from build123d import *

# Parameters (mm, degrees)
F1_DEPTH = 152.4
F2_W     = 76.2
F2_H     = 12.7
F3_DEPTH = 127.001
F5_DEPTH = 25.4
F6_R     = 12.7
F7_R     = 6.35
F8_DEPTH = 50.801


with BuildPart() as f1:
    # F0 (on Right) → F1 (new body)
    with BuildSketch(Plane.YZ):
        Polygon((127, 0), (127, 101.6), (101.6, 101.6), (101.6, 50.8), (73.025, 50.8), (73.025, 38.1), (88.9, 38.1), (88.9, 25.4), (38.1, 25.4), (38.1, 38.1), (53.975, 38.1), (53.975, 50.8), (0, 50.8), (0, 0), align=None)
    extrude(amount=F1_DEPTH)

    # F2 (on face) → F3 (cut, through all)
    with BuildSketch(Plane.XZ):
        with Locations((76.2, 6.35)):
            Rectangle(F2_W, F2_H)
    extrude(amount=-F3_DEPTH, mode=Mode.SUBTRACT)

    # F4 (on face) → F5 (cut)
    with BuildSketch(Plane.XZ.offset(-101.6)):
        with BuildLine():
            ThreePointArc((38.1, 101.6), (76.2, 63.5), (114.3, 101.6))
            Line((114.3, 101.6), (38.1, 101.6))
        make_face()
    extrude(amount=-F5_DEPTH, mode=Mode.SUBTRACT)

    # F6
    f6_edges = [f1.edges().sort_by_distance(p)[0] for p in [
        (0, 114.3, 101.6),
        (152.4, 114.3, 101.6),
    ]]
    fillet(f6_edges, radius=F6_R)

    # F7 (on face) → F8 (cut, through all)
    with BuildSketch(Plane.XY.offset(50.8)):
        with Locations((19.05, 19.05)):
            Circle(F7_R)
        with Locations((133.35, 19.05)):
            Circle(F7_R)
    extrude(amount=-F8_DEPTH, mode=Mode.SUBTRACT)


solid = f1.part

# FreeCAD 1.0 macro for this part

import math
import FreeCAD as App
import Part
import Sketcher

V = App.Vector
Q = App.Units.Quantity


def edges_at(feature, points):
    """Names of the edges that pass closest to the given points."""
    edges = feature.Shape.Edges
    near = lambda p: min(range(len(edges)), key=lambda i: edges[i].distToShape(Part.Vertex(*p))[0])
    return sorted({f"Edge{near(p) + 1}" for p in points})

doc = App.newDocument("Part")
body = doc.addObject("PartDesign::Body", "Body")

sketch1 = body.newObject("Sketcher::SketchObject", "Sketch")
sketch1.AttachmentSupport = (doc.getObject("YZ_Plane"), [""])
sketch1.MapMode = "FlatFace"
sketch1.addGeometry(Part.LineSegment(V(127, 0, 0), V(127, 102, 0)), False)
sketch1.addGeometry(Part.LineSegment(V(127, 102, 0), V(102, 102, 0)), False)
sketch1.addGeometry(Part.LineSegment(V(102, 102, 0), V(102, 51, 0)), False)
sketch1.addGeometry(Part.LineSegment(V(102, 51, 0), V(73, 51, 0)), False)
sketch1.addGeometry(Part.LineSegment(V(73, 51, 0), V(73, 38, 0)), False)
sketch1.addGeometry(Part.LineSegment(V(73, 38, 0), V(89, 38, 0)), False)
sketch1.addGeometry(Part.LineSegment(V(89, 38, 0), V(89, 25, 0)), False)
sketch1.addGeometry(Part.LineSegment(V(89, 25, 0), V(38, 25, 0)), False)
sketch1.addGeometry(Part.LineSegment(V(38, 25, 0), V(38, 38, 0)), False)
sketch1.addGeometry(Part.LineSegment(V(38, 38, 0), V(54, 38, 0)), False)
sketch1.addGeometry(Part.LineSegment(V(54, 38, 0), V(54, 51, 0)), False)
sketch1.addGeometry(Part.LineSegment(V(54, 51, 0), V(0, 51, 0)), False)
sketch1.addGeometry(Part.LineSegment(V(0, 51, 0), V(0, 0, 0)), False)
sketch1.addGeometry(Part.LineSegment(V(0, 0, 0), V(127, 0, 0)), False)
sketch1.addConstraint(Sketcher.Constraint("Coincident", 0, 2, 1, 1))
sketch1.addConstraint(Sketcher.Constraint("Coincident", 1, 2, 2, 1))
sketch1.addConstraint(Sketcher.Constraint("Coincident", 2, 2, 3, 1))
sketch1.addConstraint(Sketcher.Constraint("Coincident", 3, 2, 4, 1))
sketch1.addConstraint(Sketcher.Constraint("Coincident", 4, 2, 5, 1))
sketch1.addConstraint(Sketcher.Constraint("Coincident", 5, 2, 6, 1))
sketch1.addConstraint(Sketcher.Constraint("Coincident", 6, 2, 7, 1))
sketch1.addConstraint(Sketcher.Constraint("Coincident", 7, 2, 8, 1))
sketch1.addConstraint(Sketcher.Constraint("Coincident", 8, 2, 9, 1))
sketch1.addConstraint(Sketcher.Constraint("Coincident", 9, 2, 10, 1))
sketch1.addConstraint(Sketcher.Constraint("Coincident", 10, 2, 11, 1))
sketch1.addConstraint(Sketcher.Constraint("Coincident", 11, 2, 12, 1))
sketch1.addConstraint(Sketcher.Constraint("Coincident", 12, 2, 13, 1))
sketch1.addConstraint(Sketcher.Constraint("Coincident", 13, 2, 0, 1))
sketch1.addConstraint(Sketcher.Constraint("Vertical", 0))
sketch1.addConstraint(Sketcher.Constraint("Horizontal", 1))
sketch1.addConstraint(Sketcher.Constraint("Vertical", 2))
sketch1.addConstraint(Sketcher.Constraint("Horizontal", 3))
sketch1.addConstraint(Sketcher.Constraint("Vertical", 4))
sketch1.addConstraint(Sketcher.Constraint("Horizontal", 5))
sketch1.addConstraint(Sketcher.Constraint("Vertical", 6))
sketch1.addConstraint(Sketcher.Constraint("Horizontal", 7))
sketch1.addConstraint(Sketcher.Constraint("Vertical", 8))
sketch1.addConstraint(Sketcher.Constraint("Horizontal", 9))
sketch1.addConstraint(Sketcher.Constraint("Vertical", 10))
sketch1.addConstraint(Sketcher.Constraint("Horizontal", 11))
sketch1.addConstraint(Sketcher.Constraint("Vertical", 12))
sketch1.addConstraint(Sketcher.Constraint("Horizontal", 13))
sketch1.addConstraint(Sketcher.Constraint("Coincident", 12, 2, -1, 1))
sketch1.addConstraint(Sketcher.Constraint("Horizontal", 5, 2, 8, 2))
sketch1.addConstraint(Sketcher.Constraint("Horizontal", 3, 2, 10, 2))
sketch1.addConstraint(Sketcher.Constraint("Equal", 5, 9))
sketch1.addConstraint(Sketcher.Constraint("Equal", 7, 2))
sketch1.addConstraint(Sketcher.Constraint("Equal", 4, 6))
sketch1.addConstraint(Sketcher.Constraint("Equal", 2, 12))
sketch1.addConstraint(Sketcher.Constraint("DistanceX", 1, 2, 1, 1, Q("1 in")))
sketch1.addConstraint(Sketcher.Constraint("DistanceX", 7, 2, 7, 1, Q("2 in")))
sketch1.addConstraint(Sketcher.Constraint("DistanceX", 13, 1, 13, 2, Q("5 in")))
sketch1.addConstraint(Sketcher.Constraint("DistanceY", 4, 2, 4, 1, Q("0.5 in")))
sketch1.addConstraint(Sketcher.Constraint("DistanceX", -1, 1, 5, 2, Q("3.5 in")))
sketch1.addConstraint(Sketcher.Constraint("DistanceX", 3, 2, 3, 1, Q("1.125 in")))
pad1 = body.newObject("PartDesign::Pad", "Pad")
pad1.Profile = sketch1
pad1.Length = Q("6 in")

sketch2 = body.newObject("Sketcher::SketchObject", "Sketch001")
sketch2.AttachmentSupport = (doc.getObject("XZ_Plane"), [""])
sketch2.MapMode = "FlatFace"
sketch2.addGeometry(Part.LineSegment(V(38, 13, 0), V(38, 0, 0)), False)
sketch2.addGeometry(Part.LineSegment(V(38, 0, 0), V(114, 0, 0)), False)
sketch2.addGeometry(Part.LineSegment(V(114, 0, 0), V(114, 13, 0)), False)
sketch2.addGeometry(Part.LineSegment(V(114, 13, 0), V(38, 13, 0)), False)
sketch2.addConstraint(Sketcher.Constraint("Coincident", 0, 2, 1, 1))
sketch2.addConstraint(Sketcher.Constraint("Coincident", 1, 2, 2, 1))
sketch2.addConstraint(Sketcher.Constraint("Coincident", 2, 2, 3, 1))
sketch2.addConstraint(Sketcher.Constraint("Coincident", 3, 2, 0, 1))
sketch2.addConstraint(Sketcher.Constraint("Vertical", 0))
sketch2.addConstraint(Sketcher.Constraint("Horizontal", 1))
sketch2.addConstraint(Sketcher.Constraint("Vertical", 2))
sketch2.addConstraint(Sketcher.Constraint("Horizontal", 3))
sketch2.addConstraint(Sketcher.Constraint("PointOnObject", 0, 2, -1))
sketch2.addConstraint(Sketcher.Constraint("DistanceX", 1, 1, 1, 2, Q("3 in")))
sketch2.addConstraint(Sketcher.Constraint("DistanceY", 0, 2, 0, 1, Q("0.5 in")))
sketch2.addConstraint(Sketcher.Constraint("DistanceX", -1, 1, 0, 2, Q("1.5 in")))
pocket1 = body.newObject("PartDesign::Pocket", "Pocket")
pocket1.Profile = sketch2
pocket1.Type = "ThroughAll"

sketch3 = body.newObject("Sketcher::SketchObject", "Sketch002")
sketch3.AttachmentSupport = (doc.getObject("XZ_Plane"), [""])
sketch3.MapMode = "FlatFace"
sketch3.AttachmentOffset = App.Placement(V(0, 0, -4 * 25.4), App.Rotation())
sketch3.addGeometry(Part.ArcOfCircle(Part.Circle(V(76, 102, 0), V(0, 0, 1), 38), math.radians(180), math.radians(360)), False)
sketch3.addGeometry(Part.LineSegment(V(114, 102, 0), V(38, 102, 0)), False)
sketch3.addConstraint(Sketcher.Constraint("Coincident", 0, 1, 1, 2))
sketch3.addConstraint(Sketcher.Constraint("Coincident", 1, 1, 0, 2))
sketch3.addConstraint(Sketcher.Constraint("Horizontal", 1))
sketch3.addConstraint(Sketcher.Constraint("Radius", 0, Q("1.5 in")))
sketch3.addConstraint(Sketcher.Constraint("DistanceX", -1, 1, 0, 3, Q("3 in")))
sketch3.addConstraint(Sketcher.Constraint("DistanceY", -1, 1, 0, 3, Q("4 in")))
sketch3.addConstraint(Sketcher.Constraint("DistanceY", -1, 1, 0, 1, Q("4 in")))
pocket2 = body.newObject("PartDesign::Pocket", "Pocket001")
pocket2.Profile = sketch3
pocket2.Length = Q("1 in")
doc.recompute()

fillet = body.newObject("PartDesign::Fillet", "Fillet")
fillet.Base = (pocket2, edges_at(pocket2, [(0, 114.3, 101.6), (152.4, 114.3, 101.6)]))
fillet.Radius = Q("0.5 in")

sketch4 = body.newObject("Sketcher::SketchObject", "Sketch003")
sketch4.AttachmentSupport = (doc.getObject("XY_Plane"), [""])
sketch4.MapMode = "FlatFace"
sketch4.AttachmentOffset = App.Placement(V(0, 0, 2 * 25.4), App.Rotation())
sketch4.addGeometry(Part.Circle(V(19, 19, 0), V(0, 0, 1), 6), False)
sketch4.addGeometry(Part.Circle(V(133, 19, 0), V(0, 0, 1), 6), False)
sketch4.addConstraint(Sketcher.Constraint("Equal", 0, 1))
sketch4.addConstraint(Sketcher.Constraint("Horizontal", 0, 3, 1, 3))
sketch4.addConstraint(Sketcher.Constraint("Diameter", 0, Q("0.5 in")))
sketch4.addConstraint(Sketcher.Constraint("DistanceX", 0, 3, 1, 3, Q("4.5 in")))
sketch4.addConstraint(Sketcher.Constraint("DistanceX", -1, 1, 0, 3, Q("0.75 in")))
sketch4.addConstraint(Sketcher.Constraint("DistanceY", -1, 1, 0, 3, Q("0.75 in")))
pocket3 = body.newObject("PartDesign::Pocket", "Pocket002")
pocket3.Profile = sketch4
pocket3.Type = "ThroughAll"

doc.recompute()
